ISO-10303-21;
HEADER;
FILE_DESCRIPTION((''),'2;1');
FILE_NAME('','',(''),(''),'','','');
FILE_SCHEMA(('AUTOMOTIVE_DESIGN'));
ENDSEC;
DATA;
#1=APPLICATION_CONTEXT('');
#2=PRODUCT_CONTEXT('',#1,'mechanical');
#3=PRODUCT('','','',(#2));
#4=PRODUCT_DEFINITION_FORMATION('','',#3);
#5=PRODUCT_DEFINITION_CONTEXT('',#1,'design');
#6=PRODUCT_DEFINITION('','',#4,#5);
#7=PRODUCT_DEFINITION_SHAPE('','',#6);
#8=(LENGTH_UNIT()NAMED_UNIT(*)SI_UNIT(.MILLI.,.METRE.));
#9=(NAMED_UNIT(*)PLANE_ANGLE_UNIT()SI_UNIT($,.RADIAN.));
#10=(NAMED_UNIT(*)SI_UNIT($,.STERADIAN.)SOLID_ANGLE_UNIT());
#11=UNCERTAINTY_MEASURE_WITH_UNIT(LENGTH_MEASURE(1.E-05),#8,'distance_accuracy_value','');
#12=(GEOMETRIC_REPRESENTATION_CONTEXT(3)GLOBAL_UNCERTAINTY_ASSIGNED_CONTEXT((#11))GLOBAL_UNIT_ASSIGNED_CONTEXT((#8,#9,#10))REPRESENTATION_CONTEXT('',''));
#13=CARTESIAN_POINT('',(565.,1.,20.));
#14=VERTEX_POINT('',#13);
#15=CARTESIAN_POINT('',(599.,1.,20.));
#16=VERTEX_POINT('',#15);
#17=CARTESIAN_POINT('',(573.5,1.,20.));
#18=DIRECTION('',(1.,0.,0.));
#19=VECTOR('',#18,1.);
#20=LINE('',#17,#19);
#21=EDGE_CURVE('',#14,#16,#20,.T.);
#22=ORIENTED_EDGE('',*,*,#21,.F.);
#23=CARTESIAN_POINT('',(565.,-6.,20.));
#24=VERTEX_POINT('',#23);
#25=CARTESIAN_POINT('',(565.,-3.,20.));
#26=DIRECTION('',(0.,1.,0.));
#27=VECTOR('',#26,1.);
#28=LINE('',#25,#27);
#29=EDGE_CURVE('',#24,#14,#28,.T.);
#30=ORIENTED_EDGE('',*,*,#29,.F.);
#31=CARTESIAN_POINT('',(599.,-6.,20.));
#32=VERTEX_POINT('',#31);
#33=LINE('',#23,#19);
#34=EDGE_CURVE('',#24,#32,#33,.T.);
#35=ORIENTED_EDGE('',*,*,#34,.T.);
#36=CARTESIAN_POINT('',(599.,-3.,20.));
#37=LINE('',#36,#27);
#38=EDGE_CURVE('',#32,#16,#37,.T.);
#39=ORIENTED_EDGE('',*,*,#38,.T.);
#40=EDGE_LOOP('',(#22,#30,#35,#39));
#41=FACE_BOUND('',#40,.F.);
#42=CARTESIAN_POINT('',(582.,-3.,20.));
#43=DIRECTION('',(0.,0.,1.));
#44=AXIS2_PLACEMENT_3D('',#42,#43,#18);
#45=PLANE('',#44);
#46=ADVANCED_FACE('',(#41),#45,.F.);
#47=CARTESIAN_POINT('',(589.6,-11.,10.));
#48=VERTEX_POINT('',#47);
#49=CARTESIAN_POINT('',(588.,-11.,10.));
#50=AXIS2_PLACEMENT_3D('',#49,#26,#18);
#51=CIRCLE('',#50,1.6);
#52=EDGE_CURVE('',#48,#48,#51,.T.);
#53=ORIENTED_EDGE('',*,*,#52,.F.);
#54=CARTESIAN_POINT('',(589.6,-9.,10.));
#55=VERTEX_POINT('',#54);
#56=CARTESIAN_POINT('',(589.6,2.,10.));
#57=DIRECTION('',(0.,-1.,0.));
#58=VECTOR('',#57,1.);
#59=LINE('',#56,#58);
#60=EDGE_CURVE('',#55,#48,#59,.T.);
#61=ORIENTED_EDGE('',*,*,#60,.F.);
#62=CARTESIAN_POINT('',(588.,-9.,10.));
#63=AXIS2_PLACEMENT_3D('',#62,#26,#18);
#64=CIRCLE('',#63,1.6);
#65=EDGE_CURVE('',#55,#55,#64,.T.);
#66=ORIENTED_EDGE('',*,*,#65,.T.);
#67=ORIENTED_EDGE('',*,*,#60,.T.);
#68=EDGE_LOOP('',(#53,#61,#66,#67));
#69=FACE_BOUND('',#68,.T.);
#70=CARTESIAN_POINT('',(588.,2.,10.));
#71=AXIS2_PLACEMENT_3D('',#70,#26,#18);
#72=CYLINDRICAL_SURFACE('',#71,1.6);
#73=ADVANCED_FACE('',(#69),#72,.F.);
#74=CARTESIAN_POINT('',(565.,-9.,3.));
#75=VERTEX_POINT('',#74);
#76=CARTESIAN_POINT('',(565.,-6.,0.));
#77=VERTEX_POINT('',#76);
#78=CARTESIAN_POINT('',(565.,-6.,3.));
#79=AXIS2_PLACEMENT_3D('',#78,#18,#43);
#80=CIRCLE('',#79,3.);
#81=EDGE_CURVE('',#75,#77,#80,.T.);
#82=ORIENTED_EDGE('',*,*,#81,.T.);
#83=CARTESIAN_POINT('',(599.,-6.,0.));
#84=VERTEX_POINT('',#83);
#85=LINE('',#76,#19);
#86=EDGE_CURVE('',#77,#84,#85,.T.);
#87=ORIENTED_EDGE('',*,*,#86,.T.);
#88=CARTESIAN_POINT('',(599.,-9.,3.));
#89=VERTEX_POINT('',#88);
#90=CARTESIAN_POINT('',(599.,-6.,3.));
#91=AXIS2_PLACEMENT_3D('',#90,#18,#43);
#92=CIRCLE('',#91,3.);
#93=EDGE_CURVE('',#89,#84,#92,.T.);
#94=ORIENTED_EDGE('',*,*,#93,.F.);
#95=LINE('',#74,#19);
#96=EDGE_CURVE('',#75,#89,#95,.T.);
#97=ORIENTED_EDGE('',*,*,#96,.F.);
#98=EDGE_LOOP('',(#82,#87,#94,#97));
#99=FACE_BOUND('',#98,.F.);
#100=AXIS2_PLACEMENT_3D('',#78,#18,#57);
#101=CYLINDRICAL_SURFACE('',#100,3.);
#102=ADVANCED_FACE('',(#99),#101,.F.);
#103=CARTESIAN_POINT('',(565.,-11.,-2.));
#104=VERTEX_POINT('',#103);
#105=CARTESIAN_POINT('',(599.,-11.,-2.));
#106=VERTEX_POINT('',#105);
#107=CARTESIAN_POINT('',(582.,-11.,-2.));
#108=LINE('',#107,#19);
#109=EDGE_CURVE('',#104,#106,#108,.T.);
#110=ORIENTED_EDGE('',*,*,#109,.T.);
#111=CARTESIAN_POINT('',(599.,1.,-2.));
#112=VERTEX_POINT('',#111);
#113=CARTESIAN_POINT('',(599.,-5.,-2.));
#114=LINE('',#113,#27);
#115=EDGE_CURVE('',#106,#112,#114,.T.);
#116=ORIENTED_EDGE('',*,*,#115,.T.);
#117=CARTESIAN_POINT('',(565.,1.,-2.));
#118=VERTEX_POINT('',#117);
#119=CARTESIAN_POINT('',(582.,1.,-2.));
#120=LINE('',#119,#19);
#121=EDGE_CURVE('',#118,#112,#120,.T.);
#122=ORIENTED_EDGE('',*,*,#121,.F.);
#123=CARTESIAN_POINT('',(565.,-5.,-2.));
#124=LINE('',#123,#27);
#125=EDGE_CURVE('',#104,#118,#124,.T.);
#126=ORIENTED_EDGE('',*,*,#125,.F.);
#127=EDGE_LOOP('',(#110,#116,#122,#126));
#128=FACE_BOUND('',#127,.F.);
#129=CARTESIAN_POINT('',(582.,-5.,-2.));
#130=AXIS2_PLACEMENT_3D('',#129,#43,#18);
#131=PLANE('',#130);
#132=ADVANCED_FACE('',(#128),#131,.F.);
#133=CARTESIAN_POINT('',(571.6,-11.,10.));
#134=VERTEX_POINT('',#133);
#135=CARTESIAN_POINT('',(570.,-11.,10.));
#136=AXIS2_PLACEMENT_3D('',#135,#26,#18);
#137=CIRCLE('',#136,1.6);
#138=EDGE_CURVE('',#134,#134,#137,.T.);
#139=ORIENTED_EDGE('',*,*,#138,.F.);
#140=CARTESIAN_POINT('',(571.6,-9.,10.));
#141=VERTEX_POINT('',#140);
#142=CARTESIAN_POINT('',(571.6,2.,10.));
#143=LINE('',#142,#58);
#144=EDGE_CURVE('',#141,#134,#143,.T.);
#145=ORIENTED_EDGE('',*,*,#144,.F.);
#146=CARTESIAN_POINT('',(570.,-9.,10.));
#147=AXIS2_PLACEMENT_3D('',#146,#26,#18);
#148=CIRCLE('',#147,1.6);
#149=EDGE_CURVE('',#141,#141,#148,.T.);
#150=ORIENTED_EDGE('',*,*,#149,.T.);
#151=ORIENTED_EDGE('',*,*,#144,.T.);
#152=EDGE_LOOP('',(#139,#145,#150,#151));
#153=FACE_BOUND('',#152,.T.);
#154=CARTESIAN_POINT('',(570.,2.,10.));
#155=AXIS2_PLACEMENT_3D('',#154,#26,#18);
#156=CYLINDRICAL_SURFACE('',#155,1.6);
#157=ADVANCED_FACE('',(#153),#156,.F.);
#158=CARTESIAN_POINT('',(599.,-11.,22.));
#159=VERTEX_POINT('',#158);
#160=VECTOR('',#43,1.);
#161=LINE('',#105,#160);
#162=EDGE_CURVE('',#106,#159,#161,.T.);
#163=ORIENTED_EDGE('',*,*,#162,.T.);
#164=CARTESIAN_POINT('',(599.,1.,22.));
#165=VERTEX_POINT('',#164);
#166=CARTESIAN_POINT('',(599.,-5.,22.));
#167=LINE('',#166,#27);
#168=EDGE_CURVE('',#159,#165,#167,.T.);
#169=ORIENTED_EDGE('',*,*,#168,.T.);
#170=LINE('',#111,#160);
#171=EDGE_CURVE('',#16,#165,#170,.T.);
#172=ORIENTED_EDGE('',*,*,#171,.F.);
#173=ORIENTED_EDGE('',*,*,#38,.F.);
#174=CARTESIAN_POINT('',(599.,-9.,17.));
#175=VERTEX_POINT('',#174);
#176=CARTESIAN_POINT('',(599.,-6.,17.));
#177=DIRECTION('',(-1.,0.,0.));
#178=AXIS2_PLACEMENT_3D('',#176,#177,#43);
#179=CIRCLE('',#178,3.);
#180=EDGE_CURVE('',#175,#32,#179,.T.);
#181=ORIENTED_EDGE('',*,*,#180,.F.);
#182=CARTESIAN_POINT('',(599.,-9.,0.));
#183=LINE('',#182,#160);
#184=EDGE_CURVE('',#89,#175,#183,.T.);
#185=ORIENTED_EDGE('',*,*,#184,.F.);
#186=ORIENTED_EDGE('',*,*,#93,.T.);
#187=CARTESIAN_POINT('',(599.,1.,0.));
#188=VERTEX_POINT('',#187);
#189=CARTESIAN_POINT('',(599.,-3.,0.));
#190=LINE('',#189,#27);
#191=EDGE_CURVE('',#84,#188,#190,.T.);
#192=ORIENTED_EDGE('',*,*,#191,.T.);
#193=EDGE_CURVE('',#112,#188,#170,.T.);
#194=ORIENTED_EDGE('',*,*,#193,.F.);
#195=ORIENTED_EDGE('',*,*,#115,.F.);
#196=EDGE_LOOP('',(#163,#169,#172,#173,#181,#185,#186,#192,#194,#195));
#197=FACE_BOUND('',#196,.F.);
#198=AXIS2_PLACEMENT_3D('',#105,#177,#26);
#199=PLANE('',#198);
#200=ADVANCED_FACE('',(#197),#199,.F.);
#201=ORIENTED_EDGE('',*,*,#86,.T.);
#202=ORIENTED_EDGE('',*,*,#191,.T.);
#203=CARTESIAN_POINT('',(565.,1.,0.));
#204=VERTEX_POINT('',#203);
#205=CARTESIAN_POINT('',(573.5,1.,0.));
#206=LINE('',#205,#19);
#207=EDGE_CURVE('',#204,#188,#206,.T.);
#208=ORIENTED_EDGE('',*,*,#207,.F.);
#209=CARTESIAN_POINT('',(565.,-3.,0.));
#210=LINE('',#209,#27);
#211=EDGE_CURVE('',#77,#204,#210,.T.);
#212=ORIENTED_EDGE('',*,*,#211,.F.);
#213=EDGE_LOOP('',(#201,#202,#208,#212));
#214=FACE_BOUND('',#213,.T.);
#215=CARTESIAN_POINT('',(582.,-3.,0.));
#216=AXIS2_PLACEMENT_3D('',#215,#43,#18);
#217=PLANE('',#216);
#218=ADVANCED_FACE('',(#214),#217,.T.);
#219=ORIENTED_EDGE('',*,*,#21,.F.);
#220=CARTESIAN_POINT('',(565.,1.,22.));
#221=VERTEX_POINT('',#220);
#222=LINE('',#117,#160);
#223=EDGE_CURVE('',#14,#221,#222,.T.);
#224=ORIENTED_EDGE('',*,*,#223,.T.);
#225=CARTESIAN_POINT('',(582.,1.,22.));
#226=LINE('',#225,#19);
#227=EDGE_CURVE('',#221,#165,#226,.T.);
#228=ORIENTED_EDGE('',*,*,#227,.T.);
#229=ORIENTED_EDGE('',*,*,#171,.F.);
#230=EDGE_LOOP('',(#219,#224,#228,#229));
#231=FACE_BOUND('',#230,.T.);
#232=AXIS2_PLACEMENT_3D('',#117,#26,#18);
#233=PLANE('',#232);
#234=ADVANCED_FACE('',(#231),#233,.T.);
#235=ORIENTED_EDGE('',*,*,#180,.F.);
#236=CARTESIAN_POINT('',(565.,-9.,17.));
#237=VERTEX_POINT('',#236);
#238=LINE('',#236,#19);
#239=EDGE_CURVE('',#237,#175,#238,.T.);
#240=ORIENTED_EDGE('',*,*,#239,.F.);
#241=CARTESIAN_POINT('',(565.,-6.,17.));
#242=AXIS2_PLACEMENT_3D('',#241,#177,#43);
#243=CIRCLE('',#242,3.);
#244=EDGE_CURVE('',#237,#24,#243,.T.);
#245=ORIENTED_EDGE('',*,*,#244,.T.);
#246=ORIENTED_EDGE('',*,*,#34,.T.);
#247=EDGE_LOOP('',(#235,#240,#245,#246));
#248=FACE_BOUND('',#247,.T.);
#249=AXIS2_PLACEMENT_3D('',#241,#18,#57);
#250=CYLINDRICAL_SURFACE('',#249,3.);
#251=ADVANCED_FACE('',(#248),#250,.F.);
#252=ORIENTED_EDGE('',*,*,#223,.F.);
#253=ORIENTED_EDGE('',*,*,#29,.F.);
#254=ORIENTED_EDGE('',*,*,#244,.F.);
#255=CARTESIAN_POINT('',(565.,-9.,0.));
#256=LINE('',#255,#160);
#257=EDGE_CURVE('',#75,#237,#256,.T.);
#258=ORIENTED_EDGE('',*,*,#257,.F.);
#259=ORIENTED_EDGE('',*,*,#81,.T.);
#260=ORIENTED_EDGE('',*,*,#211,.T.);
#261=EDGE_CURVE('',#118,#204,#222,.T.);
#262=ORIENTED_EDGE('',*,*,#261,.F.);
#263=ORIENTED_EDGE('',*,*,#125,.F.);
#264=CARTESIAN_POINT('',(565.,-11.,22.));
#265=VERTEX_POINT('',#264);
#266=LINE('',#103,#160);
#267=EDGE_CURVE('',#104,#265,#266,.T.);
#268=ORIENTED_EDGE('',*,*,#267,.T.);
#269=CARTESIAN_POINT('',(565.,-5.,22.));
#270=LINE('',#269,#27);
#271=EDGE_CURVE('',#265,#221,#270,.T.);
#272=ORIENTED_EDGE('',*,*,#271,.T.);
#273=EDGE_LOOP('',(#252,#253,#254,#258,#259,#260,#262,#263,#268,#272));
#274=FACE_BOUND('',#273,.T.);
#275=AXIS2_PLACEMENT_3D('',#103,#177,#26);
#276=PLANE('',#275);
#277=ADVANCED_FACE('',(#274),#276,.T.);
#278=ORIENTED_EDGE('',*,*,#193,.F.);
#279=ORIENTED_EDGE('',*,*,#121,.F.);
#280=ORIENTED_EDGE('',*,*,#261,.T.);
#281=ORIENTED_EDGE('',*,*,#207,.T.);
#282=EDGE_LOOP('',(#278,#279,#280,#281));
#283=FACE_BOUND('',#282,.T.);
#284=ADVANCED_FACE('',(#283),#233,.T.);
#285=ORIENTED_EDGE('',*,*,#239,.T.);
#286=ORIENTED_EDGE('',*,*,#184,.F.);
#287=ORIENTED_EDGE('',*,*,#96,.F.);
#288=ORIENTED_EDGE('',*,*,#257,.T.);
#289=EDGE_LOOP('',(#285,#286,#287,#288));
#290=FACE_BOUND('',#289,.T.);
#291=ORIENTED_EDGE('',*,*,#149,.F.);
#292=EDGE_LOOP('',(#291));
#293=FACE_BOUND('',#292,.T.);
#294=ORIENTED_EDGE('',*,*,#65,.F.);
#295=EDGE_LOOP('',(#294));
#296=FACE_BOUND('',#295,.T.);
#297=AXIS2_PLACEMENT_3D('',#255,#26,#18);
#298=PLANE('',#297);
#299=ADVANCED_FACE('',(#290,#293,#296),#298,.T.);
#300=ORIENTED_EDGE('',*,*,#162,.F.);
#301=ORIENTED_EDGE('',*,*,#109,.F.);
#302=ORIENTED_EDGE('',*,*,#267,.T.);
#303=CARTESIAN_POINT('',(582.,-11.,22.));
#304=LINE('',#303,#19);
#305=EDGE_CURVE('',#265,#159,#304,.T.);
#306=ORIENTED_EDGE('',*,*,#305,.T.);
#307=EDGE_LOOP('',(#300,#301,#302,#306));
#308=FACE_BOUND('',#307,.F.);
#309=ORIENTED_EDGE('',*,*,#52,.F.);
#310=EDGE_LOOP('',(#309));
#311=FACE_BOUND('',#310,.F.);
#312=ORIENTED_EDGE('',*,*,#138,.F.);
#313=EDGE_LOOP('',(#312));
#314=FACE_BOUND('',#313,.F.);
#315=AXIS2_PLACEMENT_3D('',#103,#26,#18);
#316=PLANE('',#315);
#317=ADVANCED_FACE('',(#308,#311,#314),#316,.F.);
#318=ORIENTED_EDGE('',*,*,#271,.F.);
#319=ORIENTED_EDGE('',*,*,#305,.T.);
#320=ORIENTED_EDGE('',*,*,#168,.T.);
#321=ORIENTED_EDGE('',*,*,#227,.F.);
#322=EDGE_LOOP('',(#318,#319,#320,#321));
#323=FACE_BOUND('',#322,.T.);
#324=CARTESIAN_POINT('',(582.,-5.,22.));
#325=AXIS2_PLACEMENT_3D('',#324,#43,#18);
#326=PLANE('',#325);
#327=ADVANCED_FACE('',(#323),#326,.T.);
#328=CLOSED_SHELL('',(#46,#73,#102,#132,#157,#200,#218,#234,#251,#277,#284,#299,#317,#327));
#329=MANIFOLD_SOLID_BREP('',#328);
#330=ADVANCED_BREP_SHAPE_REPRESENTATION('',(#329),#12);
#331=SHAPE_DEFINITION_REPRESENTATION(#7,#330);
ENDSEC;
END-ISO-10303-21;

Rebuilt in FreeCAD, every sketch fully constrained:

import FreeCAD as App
import Part
import Sketcher

V = App.Vector


def edges_at(feature, points):
    """Names of the edges that pass closest to the given points."""
    edges = feature.Shape.Edges
    near = lambda p: min(range(len(edges)), key=lambda i: edges[i].distToShape(Part.Vertex(*p))[0])
    return sorted({f"Edge{near(p) + 1}" for p in points})

doc = App.newDocument("Part")
body = doc.addObject("PartDesign::Body", "Body")

# Sketch on XZ plane
sketch1 = body.newObject("Sketcher::SketchObject", "Sketch")
sketch1.AttachmentSupport = (doc.getObject("XZ_Plane"), [""])
sketch1.MapMode = "FlatFace"
sketch1.AttachmentOffset = App.Placement(V(0, 0, -6), App.Rotation())
sketch1.addGeometry(Part.Circle(V(588, 10, 0), V(0, 0, 1), 1.6), False)
sketch1.addConstraint([
    Sketcher.Constraint("Diameter", 0, 3.2),
    Sketcher.Constraint("DistanceX", -1, 1, 0, 3, 588.0),
    Sketcher.Constraint("DistanceY", -1, 1, 0, 3, 10.0),
])
pad1 = body.newObject("PartDesign::Pad", "Pad")
pad1.Profile = sketch1
pad1.Length = 15
body2 = doc.addObject("PartDesign::Body", "Body001")
body2.AllowCompound = True

# Sketch on XZ plane
sketch2 = body2.newObject("Sketcher::SketchObject", "Sketch001")
sketch2.AttachmentSupport = (doc.getObject("XZ_Plane001"), [""])
sketch2.MapMode = "FlatFace"
sketch2.AttachmentOffset = App.Placement(V(0, 0, -6), App.Rotation())
sketch2.addGeometry(Part.Circle(V(570, 10, 0), V(0, 0, 1), 1.6), False)
sketch2.addConstraint([
    Sketcher.Constraint("Diameter", 0, 3.2),
    Sketcher.Constraint("DistanceX", -1, 1, 0, 3, 570.0),
    Sketcher.Constraint("DistanceY", -1, 1, 0, 3, 10.0),
])
pad2 = body2.newObject("PartDesign::Pad", "Pad001")
pad2.Profile = sketch2
pad2.Length = 15
doc.recompute()

boolean = body2.newObject("PartDesign::Boolean", "Boolean")
boolean.Type = "Fuse"
boolean.addObjects([body])
body3 = doc.addObject("PartDesign::Body", "Body002")
body3.AllowCompound = True
doc.recompute()

body2.Placement = App.Placement(V(0, -4, 0), App.Rotation(V(0, 0, 1), 0))
boolean2 = body3.newObject("PartDesign::Boolean", "Boolean001")
boolean2.Type = "Fuse"
boolean2.addObjects([body2])
body4 = doc.addObject("PartDesign::Body", "Body003")

# Sketch on XY plane
sketch3 = body4.newObject("Sketcher::SketchObject", "Sketch002")
sketch3.AttachmentSupport = (doc.getObject("XY_Plane003"), [""])
sketch3.MapMode = "FlatFace"
sketch3.addGeometry([
    Part.LineSegment(V(565, 3, 0), V(565, -9, 0)),
    Part.LineSegment(V(565, -9, 0), V(599, -9, 0)),
    Part.LineSegment(V(599, -9, 0), V(599, 3, 0)),
    Part.LineSegment(V(599, 3, 0), V(565, 3, 0)),
], False)
sketch3.addConstraint([
    Sketcher.Constraint("Coincident", 0, 2, 1, 1),
    Sketcher.Constraint("Coincident", 1, 2, 2, 1),
    Sketcher.Constraint("Coincident", 2, 2, 3, 1),
    Sketcher.Constraint("Coincident", 3, 2, 0, 1),
    Sketcher.Constraint("Vertical", 0),
    Sketcher.Constraint("Horizontal", 1),
    Sketcher.Constraint("Vertical", 2),
    Sketcher.Constraint("Horizontal", 3),
    Sketcher.Constraint("DistanceX", 1, 1, 1, 2, 34.0),
    Sketcher.Constraint("DistanceY", 0, 2, 0, 1, 12.0),
    Sketcher.Constraint("DistanceX", -1, 1, 0, 2, 565.0),
    Sketcher.Constraint("DistanceY", 0, 2, -1, 1, 9.0),
])
pad3 = body4.newObject("PartDesign::Pad", "Pad002")
pad3.Profile = sketch3
pad3.Length = 20
doc.recompute()

fillet = body4.newObject("PartDesign::Fillet", "Fillet")
fillet.Base = (pad3, edges_at(pad3, [(582, -9, 0), (582, -9, 20)]))
fillet.Radius = 3
body5 = doc.addObject("PartDesign::Body", "Body004")

# Sketch on XY plane
sketch4 = body5.newObject("Sketcher::SketchObject", "Sketch003")
sketch4.AttachmentSupport = (doc.getObject("XY_Plane004"), [""])
sketch4.MapMode = "FlatFace"
sketch4.AttachmentOffset = App.Placement(V(0, 0, -2), App.Rotation())
sketch4.addGeometry([
    Part.LineSegment(V(565, 1, 0), V(565, -11, 0)),
    Part.LineSegment(V(565, -11, 0), V(599, -11, 0)),
    Part.LineSegment(V(599, -11, 0), V(599, 1, 0)),
    Part.LineSegment(V(599, 1, 0), V(565, 1, 0)),
], False)
sketch4.addConstraint([
    Sketcher.Constraint("Coincident", 0, 2, 1, 1),
    Sketcher.Constraint("Coincident", 1, 2, 2, 1),
    Sketcher.Constraint("Coincident", 2, 2, 3, 1),
    Sketcher.Constraint("Coincident", 3, 2, 0, 1),
    Sketcher.Constraint("Vertical", 0),
    Sketcher.Constraint("Horizontal", 1),
    Sketcher.Constraint("Vertical", 2),
    Sketcher.Constraint("Horizontal", 3),
    Sketcher.Constraint("DistanceX", 1, 1, 1, 2, 34.0),
    Sketcher.Constraint("DistanceY", 0, 2, 0, 1, 12.0),
    Sketcher.Constraint("DistanceX", -1, 1, 0, 2, 565.0),
    Sketcher.Constraint("DistanceY", 0, 2, -1, 1, 11.0),
])
pad4 = body5.newObject("PartDesign::Pad", "Pad003")
pad4.Profile = sketch4
pad4.Length = 24
doc.recompute()

boolean3 = body5.newObject("PartDesign::Boolean", "Boolean002")
boolean3.Type = "Cut"
boolean3.addObjects([body4])
doc.recompute()

boolean4 = body5.newObject("PartDesign::Boolean", "Boolean003")
boolean4.Type = "Cut"
boolean4.addObjects([body3])

doc.recompute()
